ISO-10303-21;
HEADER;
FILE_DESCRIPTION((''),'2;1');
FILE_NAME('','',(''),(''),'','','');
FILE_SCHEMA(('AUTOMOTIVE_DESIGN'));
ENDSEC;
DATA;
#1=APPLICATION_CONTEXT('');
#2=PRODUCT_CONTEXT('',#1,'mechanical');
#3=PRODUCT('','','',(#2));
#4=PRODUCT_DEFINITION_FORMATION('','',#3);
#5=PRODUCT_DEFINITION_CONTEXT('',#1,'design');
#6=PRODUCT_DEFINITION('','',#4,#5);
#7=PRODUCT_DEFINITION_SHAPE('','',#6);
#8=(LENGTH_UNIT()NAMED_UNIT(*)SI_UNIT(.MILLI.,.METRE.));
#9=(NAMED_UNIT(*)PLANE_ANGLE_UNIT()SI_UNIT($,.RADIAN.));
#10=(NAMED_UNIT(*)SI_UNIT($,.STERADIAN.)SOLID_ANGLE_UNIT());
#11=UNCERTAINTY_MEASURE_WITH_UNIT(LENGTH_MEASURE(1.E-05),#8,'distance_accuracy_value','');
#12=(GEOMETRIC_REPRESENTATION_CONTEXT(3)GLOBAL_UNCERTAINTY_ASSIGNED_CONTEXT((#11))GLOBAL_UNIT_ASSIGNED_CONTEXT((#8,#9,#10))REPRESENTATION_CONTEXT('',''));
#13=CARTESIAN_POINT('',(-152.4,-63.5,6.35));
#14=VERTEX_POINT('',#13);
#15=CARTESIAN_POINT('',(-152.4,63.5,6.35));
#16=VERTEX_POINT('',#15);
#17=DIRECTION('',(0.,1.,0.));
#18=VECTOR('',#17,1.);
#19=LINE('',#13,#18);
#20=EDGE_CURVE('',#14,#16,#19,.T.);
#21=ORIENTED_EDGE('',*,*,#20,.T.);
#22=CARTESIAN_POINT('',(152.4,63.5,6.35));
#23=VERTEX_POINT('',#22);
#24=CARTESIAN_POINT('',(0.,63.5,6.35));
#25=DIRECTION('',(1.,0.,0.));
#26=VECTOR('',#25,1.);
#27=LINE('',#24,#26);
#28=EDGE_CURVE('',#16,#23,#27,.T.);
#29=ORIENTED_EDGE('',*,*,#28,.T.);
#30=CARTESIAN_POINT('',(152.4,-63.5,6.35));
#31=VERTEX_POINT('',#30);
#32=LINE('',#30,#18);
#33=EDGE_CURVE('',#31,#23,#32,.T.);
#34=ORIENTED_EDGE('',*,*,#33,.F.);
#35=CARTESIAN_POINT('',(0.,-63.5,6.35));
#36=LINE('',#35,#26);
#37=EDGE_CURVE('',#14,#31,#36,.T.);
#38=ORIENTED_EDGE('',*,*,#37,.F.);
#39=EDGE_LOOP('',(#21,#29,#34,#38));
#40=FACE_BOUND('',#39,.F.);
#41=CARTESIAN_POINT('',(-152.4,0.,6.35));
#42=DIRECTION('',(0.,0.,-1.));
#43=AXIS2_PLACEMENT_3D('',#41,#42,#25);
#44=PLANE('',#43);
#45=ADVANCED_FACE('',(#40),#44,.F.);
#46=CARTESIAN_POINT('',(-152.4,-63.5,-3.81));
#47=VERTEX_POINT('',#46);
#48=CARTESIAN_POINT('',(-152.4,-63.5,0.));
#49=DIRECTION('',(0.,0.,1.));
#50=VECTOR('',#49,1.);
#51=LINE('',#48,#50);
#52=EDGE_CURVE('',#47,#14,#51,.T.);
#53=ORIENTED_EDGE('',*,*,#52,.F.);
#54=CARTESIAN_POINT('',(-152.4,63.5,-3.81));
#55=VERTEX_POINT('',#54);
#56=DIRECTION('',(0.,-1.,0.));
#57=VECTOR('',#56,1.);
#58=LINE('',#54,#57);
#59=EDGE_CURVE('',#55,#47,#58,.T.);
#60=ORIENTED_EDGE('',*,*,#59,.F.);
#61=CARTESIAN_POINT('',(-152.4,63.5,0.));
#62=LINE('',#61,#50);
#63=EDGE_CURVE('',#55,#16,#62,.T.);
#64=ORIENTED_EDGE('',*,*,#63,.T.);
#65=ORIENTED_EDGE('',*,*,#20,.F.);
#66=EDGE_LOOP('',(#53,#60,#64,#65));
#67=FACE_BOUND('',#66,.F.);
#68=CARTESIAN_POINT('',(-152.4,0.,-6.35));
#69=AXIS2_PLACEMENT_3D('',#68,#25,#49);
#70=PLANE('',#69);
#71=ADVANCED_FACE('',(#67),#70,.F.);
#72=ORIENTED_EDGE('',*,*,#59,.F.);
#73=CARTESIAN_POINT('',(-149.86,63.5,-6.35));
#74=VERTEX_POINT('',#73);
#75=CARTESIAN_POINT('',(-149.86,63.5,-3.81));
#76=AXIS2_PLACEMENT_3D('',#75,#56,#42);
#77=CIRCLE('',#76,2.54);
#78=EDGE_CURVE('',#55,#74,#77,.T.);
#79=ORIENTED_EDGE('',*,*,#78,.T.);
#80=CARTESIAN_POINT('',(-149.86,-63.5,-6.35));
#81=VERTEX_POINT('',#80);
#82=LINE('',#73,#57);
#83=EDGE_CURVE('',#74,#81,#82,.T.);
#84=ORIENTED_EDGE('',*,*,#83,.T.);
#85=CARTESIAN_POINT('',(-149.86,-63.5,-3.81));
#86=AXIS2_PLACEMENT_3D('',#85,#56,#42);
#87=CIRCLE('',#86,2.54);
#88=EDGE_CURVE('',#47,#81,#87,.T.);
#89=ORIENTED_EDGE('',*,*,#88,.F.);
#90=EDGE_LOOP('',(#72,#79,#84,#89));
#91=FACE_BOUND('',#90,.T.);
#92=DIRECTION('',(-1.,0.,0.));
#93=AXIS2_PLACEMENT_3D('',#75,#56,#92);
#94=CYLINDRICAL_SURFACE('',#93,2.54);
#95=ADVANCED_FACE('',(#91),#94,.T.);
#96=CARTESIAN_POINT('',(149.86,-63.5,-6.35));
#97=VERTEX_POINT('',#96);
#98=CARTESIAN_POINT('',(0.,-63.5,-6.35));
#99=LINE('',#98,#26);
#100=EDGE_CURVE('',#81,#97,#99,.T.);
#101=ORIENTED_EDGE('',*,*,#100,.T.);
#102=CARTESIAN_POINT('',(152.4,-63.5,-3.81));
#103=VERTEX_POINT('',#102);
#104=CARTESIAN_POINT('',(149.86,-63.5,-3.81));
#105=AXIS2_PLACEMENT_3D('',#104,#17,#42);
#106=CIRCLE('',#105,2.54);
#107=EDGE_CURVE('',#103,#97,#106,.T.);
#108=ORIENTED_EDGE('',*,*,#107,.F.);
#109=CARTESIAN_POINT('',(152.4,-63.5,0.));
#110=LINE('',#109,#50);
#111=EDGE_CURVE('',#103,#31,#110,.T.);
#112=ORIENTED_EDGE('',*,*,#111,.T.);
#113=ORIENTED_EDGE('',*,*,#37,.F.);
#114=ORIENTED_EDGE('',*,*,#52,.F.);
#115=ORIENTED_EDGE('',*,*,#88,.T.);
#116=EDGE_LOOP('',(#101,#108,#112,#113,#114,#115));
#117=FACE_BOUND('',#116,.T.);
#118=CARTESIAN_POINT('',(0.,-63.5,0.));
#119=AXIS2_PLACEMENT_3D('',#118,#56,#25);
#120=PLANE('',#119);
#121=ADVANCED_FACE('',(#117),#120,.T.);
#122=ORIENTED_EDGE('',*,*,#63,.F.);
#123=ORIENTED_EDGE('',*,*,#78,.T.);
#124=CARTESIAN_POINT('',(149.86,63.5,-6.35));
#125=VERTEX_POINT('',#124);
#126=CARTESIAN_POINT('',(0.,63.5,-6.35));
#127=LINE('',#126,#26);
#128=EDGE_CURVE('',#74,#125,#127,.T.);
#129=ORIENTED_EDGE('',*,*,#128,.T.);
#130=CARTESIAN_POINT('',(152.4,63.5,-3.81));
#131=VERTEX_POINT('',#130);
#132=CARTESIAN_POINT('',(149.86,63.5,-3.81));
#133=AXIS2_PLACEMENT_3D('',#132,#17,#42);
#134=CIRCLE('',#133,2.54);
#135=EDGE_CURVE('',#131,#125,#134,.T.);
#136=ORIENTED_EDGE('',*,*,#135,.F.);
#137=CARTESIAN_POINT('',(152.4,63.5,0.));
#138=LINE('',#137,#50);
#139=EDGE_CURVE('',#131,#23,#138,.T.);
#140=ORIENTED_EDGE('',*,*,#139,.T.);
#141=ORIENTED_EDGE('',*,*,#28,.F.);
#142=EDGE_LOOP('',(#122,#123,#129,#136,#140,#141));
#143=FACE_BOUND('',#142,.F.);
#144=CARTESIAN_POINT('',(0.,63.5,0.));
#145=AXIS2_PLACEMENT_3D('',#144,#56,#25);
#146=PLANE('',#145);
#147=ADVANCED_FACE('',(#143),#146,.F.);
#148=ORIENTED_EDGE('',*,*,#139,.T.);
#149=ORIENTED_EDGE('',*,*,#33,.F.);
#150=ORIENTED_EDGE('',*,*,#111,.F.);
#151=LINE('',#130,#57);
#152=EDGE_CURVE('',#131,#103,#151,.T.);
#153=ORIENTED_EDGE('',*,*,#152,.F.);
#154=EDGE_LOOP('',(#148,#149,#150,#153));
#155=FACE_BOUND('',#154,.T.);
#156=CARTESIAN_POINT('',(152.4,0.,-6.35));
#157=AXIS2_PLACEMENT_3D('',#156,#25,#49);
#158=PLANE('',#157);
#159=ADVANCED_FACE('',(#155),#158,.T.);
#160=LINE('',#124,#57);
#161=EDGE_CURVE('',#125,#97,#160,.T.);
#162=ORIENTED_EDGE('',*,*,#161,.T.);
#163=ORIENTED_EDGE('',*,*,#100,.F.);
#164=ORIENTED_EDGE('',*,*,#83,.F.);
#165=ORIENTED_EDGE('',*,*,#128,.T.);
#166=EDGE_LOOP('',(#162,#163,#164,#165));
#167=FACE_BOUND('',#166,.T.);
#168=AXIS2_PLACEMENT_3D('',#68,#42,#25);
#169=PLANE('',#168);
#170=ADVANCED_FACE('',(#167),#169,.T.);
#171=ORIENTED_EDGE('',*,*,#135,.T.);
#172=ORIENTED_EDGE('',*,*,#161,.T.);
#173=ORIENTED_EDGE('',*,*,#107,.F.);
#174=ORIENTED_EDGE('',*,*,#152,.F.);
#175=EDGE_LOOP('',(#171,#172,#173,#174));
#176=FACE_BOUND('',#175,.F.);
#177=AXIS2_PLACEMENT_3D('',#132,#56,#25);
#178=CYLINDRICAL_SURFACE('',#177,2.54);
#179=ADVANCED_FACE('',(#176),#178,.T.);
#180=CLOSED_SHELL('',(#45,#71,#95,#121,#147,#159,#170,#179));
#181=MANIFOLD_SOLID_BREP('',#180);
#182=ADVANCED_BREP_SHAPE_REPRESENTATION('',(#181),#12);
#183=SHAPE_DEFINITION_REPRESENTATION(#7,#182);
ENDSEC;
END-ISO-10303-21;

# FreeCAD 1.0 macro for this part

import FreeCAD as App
import Part
import Sketcher
Q = App.Units.Quantity


def edges_at(feature, points):
    """Names of the edges that pass closest to the given points."""
    edges = feature.Shape.Edges
    near = lambda p: min(range(len(edges)), key=lambda i: edges[i].distToShape(Part.Vertex(*p))[0])
    return sorted({f"Edge{near(p) + 1}" for p in points})


def add_polygon(sketch, points):
    """Adds a closed chain of lines whose ends are joined by coincident constraints."""
    first, n = sketch.GeometryCount, len(points)
    for a, b in zip(points, points[1:] + points[:1]):
        sketch.addGeometry(Part.LineSegment(App.Vector(*a, 0), App.Vector(*b, 0)), False)
    for i in range(n):
        sketch.addConstraint(Sketcher.Constraint("Coincident", first + i, 2, first + (i + 1) % n, 1))

doc = App.newDocument("Part")
params = doc.addObject("Spreadsheet::Sheet", "Params")
for row, (alias, value) in enumerate([
    ("sketch1_width", "12 in"),
    ("sketch1_height", "0.5 in"),
    ("pad1_length", "5 in"),
    ("fillet_radius", "0.1 in"),
], start=1):
    params.set(f"A{row}", alias)
    params.set(f"B{row}", "=" + value)
    params.setAlias(f"B{row}", alias)

body = doc.addObject("PartDesign::Body", "Body")

# Sketch on XZ plane
sketch1 = body.newObject("Sketcher::SketchObject", "Sketch")
sketch1.AttachmentSupport = (doc.getObject("XZ_Plane"), [""])
sketch1.MapMode = "FlatFace"
add_polygon(sketch1, [(-152, 6), (-152, -6), (152, -6), (152, 6)])  # lines 0-3
sketch1.addConstraint(Sketcher.Constraint("Vertical", 0))
sketch1.addConstraint(Sketcher.Constraint("Horizontal", 1))
sketch1.addConstraint(Sketcher.Constraint("Vertical", 2))
sketch1.addConstraint(Sketcher.Constraint("Horizontal", 3))
sketch1.addConstraint(Sketcher.Constraint("Symmetric", 0, 2, 2, 2, -1, 1))
sketch1.addConstraint(Sketcher.Constraint("DistanceX", 1, 1, 1, 2, Q("12 in")))
sketch1.addConstraint(Sketcher.Constraint("DistanceY", 0, 2, 0, 1, Q("0.5 in")))
sketch1.setExpression("Constraints[9]", "Params.sketch1_width")
sketch1.setExpression("Constraints[10]", "Params.sketch1_height")
pad1 = body.newObject("PartDesign::Pad", "Pad")
pad1.Profile = sketch1
pad1.setExpression("Length", "Params.pad1_length")
pad1.Midplane = True
doc.recompute()

fillet = body.newObject("PartDesign::Fillet", "Fillet")
fillet.Base = (pad1, edges_at(pad1, [(-152.4, 0, -6.35), (152.4, 0, -6.35)]))
fillet.setExpression("Radius", "Params.fillet_radius")

doc.recompute()
